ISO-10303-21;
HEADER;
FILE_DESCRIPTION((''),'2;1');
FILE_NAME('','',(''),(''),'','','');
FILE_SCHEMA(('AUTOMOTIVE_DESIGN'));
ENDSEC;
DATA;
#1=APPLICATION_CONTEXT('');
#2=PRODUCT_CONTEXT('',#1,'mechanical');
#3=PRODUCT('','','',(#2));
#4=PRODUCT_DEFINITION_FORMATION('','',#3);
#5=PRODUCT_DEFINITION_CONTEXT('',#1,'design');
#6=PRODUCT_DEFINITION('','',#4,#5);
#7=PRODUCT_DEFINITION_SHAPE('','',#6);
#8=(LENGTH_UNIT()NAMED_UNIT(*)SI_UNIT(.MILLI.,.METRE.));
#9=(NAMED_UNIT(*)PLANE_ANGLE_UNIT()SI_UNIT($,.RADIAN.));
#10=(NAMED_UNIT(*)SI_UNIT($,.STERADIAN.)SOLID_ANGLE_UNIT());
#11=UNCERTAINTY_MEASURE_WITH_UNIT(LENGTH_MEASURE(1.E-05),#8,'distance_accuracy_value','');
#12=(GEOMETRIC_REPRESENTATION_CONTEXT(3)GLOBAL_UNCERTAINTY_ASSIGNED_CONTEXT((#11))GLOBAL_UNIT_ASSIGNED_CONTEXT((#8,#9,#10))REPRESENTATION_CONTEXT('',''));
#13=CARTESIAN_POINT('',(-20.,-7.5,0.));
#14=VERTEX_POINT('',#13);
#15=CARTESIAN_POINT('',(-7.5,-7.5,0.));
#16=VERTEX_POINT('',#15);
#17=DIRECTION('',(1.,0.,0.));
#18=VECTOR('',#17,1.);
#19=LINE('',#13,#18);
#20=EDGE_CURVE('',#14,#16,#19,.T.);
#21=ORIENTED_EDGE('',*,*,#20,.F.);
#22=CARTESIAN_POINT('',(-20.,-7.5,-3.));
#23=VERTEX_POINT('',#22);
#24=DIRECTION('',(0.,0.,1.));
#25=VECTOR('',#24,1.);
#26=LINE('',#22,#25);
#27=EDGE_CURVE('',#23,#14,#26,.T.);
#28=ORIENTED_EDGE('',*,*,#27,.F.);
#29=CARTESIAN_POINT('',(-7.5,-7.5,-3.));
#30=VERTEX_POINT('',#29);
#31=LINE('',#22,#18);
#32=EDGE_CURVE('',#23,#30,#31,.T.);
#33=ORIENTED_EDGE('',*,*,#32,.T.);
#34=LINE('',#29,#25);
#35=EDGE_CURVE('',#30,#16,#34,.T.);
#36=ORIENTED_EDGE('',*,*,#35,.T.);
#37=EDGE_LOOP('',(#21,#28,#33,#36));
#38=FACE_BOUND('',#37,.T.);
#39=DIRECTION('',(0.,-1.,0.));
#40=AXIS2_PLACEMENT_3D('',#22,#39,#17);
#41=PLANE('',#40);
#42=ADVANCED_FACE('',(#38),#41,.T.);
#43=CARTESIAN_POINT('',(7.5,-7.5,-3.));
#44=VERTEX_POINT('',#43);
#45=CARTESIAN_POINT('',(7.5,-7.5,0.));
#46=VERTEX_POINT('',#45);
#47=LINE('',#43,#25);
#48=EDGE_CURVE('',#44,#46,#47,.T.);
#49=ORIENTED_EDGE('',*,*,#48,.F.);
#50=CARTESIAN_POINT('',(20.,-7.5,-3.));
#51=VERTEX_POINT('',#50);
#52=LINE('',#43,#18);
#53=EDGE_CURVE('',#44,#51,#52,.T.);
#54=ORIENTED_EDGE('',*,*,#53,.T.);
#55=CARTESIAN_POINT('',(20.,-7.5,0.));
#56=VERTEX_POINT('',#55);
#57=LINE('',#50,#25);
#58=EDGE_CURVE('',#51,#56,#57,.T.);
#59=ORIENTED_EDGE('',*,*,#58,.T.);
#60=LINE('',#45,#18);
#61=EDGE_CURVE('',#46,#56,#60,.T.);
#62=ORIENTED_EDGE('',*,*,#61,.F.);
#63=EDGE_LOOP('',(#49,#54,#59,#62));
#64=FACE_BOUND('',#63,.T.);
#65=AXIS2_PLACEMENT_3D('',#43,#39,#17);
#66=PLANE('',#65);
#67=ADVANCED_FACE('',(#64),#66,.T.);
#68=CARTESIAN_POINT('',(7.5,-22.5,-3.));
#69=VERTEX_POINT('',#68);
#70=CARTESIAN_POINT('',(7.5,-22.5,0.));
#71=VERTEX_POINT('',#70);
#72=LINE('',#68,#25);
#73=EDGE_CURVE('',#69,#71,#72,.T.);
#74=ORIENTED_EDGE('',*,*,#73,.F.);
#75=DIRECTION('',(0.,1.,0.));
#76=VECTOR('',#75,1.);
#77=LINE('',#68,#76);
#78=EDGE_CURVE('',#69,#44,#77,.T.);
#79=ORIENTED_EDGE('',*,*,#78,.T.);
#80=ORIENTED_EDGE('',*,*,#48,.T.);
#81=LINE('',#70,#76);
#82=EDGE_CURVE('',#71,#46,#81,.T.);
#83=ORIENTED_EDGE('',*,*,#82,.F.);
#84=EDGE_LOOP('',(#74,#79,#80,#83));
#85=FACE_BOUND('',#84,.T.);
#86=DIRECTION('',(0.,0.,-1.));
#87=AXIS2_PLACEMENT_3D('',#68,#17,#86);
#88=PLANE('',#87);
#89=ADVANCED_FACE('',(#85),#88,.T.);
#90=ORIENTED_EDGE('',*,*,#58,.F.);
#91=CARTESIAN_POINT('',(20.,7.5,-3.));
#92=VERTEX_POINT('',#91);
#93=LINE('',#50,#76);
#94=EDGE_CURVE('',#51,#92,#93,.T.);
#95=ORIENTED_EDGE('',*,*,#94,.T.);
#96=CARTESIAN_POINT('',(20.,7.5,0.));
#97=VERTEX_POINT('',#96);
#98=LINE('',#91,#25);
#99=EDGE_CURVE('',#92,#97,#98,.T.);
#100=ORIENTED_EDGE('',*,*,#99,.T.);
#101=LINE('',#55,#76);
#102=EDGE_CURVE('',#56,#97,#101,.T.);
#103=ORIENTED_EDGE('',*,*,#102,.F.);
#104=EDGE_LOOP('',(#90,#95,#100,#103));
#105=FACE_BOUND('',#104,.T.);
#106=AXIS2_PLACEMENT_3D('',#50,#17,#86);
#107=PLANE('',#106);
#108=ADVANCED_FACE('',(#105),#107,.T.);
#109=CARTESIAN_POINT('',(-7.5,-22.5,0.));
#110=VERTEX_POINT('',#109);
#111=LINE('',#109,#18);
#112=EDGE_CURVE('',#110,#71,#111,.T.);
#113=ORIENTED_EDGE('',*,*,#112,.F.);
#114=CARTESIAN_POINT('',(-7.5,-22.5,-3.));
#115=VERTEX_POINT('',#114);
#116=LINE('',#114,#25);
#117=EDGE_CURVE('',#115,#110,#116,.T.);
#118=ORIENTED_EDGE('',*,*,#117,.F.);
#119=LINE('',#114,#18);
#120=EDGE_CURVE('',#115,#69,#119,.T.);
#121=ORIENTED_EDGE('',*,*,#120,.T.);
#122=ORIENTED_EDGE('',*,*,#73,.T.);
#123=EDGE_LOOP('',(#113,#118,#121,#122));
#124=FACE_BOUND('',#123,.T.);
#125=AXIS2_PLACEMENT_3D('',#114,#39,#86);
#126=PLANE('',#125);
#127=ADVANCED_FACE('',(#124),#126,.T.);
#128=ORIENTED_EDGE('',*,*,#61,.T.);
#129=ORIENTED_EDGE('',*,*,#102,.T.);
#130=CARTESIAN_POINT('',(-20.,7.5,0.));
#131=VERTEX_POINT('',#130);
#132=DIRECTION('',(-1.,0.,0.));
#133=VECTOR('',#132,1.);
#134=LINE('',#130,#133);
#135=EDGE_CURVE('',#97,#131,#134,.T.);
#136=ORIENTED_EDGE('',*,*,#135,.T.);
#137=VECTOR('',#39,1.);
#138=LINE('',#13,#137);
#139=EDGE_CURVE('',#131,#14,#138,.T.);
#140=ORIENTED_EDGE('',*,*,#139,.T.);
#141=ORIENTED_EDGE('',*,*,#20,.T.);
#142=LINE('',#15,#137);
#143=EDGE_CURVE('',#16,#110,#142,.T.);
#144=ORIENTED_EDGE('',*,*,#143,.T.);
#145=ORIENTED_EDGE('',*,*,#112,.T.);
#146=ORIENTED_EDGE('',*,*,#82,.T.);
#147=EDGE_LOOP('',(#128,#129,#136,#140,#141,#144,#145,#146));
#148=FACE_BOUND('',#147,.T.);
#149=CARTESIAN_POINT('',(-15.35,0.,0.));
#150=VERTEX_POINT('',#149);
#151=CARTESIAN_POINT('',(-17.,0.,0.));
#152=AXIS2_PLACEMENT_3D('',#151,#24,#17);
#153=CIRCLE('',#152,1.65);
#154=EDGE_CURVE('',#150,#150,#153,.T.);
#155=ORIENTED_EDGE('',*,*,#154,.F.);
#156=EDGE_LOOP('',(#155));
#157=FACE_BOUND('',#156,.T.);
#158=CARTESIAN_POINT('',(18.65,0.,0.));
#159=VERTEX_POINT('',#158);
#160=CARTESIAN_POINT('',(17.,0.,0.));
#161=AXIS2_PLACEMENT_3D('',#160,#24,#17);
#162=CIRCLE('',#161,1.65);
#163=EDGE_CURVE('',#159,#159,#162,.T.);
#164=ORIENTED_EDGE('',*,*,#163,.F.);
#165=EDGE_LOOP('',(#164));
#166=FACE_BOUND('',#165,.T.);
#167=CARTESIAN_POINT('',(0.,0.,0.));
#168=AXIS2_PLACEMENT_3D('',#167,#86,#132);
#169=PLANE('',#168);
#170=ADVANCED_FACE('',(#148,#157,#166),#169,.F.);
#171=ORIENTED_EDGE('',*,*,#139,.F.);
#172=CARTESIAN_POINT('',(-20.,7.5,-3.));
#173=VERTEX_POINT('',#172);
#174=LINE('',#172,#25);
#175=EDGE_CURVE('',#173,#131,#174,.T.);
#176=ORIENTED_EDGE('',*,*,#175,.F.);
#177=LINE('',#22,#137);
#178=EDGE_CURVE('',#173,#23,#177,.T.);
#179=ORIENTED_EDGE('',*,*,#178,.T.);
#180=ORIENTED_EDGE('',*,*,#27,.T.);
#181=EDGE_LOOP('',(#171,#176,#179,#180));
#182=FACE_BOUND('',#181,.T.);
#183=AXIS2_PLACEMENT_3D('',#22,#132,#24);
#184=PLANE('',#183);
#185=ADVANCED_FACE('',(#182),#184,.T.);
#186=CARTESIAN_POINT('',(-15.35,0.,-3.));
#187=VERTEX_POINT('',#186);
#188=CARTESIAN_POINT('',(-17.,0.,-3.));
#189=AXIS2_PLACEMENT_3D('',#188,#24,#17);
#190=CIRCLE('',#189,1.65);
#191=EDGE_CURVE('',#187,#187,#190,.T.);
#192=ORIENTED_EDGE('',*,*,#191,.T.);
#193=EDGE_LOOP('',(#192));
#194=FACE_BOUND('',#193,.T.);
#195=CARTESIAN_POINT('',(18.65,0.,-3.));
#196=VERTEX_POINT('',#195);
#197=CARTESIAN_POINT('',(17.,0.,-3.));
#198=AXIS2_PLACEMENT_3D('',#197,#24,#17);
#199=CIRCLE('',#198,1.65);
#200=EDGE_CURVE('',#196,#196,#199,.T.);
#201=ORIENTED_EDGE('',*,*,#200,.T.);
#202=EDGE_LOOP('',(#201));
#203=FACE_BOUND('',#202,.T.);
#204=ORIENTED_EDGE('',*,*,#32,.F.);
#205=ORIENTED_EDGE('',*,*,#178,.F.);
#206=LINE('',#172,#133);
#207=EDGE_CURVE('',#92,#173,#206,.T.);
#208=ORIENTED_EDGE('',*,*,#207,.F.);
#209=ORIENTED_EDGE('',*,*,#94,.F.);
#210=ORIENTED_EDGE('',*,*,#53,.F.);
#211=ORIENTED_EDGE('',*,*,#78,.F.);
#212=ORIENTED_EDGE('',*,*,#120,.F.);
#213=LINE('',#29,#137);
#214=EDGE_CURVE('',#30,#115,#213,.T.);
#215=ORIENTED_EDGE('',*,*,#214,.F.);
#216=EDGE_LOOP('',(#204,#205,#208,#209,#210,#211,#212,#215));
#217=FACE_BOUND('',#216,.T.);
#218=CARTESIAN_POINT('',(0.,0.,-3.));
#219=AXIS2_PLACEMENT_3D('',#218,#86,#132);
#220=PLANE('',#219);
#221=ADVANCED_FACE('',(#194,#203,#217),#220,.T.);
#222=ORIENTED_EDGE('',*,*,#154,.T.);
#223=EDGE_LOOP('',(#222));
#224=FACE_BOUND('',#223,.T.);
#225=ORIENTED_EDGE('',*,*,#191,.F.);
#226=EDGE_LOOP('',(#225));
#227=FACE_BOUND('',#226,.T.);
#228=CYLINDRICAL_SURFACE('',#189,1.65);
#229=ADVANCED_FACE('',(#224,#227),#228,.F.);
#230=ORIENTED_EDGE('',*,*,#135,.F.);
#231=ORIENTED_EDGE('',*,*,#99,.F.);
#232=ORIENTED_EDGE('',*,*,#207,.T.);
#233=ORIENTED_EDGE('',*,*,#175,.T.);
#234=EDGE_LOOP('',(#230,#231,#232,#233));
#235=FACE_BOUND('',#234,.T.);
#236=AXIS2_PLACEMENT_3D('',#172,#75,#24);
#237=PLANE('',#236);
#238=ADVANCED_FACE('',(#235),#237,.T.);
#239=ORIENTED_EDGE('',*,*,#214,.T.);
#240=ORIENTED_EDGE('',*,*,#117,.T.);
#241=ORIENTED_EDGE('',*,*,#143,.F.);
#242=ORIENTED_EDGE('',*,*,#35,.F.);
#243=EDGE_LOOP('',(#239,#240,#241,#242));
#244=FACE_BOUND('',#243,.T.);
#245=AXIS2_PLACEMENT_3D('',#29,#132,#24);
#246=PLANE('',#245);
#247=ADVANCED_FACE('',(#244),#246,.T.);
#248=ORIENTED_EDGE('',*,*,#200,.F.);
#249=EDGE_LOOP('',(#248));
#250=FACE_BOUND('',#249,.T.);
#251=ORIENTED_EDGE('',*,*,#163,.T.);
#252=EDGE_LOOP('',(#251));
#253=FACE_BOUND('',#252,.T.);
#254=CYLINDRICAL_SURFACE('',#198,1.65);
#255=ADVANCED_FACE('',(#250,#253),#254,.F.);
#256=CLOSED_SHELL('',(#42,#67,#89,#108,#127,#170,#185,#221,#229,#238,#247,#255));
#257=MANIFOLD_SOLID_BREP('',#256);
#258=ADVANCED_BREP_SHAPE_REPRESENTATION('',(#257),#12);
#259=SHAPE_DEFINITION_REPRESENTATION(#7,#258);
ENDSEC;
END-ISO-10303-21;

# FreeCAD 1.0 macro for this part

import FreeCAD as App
import Part
import Sketcher
from FreeCAD import Vector


def add_polygon(sketch, points):
    """Adds a closed chain of lines whose ends are joined by coincident constraints."""
    first, n = sketch.GeometryCount, len(points)
    for a, b in zip(points, points[1:] + points[:1]):
        sketch.addGeometry(Part.LineSegment(App.Vector(*a, 0), App.Vector(*b, 0)), False)
    for i in range(n):
        sketch.addConstraint(Sketcher.Constraint("Coincident", first + i, 2, first + (i + 1) % n, 1))

doc = App.newDocument("Part")
params = doc.addObject("Spreadsheet::Sheet", "Params")
for row, (alias, value) in enumerate([
    ("sketch1_diameter", "3.3 mm"),
    ("sketch1_width", "15 mm"),
    ("sketch1_width2", "40 mm"),
    ("pad1_length", "3 mm"),
], start=1):
    params.set(f"A{row}", alias)
    params.set(f"B{row}", "=" + value)
    params.setAlias(f"B{row}", alias)

body = doc.addObject("PartDesign::Body", "Body")

sketch1 = body.newObject("Sketcher::SketchObject", "Sketch")
sketch1.AttachmentSupport = (doc.getObject("XY_Plane"), [""])
sketch1.MapMode = "FlatFace"
add_polygon(sketch1, [(-7.5, -7.5), (-7.5, -22.5), (7.5, -22.5), (7.5, -7.5), (20, -7.5), (20, 7.5), (-20, 7.5), (-20, -7.5)])
sketch1.addGeometry(Part.Circle(Vector(-17, 0, 0), Vector(0, 0, 1), 1.65), False)
sketch1.addGeometry(Part.Circle(Vector(17, 0, 0), Vector(0, 0, 1), 1.65), False)
sketch1.addConstraint(Sketcher.Constraint("Vertical", 0))
sketch1.addConstraint(Sketcher.Constraint("Horizontal", 1))
sketch1.addConstraint(Sketcher.Constraint("Vertical", 2))
sketch1.addConstraint(Sketcher.Constraint("Horizontal", 3))
sketch1.addConstraint(Sketcher.Constraint("Vertical", 4))
sketch1.addConstraint(Sketcher.Constraint("Horizontal", 5))
sketch1.addConstraint(Sketcher.Constraint("Vertical", 6))
sketch1.addConstraint(Sketcher.Constraint("Horizontal", 7))
sketch1.addConstraint(Sketcher.Constraint("Equal", 8, 9))
sketch1.addConstraint(Sketcher.Constraint("Symmetric", 8, 3, 9, 3, -1, 1))
sketch1.addConstraint(Sketcher.Constraint("Symmetric", 3, 2, 5, 2, -1, 1))
sketch1.addConstraint(Sketcher.Constraint("Symmetric", 2, 2, 7, 2, -2))
sketch1.addConstraint(Sketcher.Constraint("PointOnObject", 8, 3, -1))
sketch1.addConstraint(Sketcher.Constraint("Equal", 1, 0))
sketch1.addConstraint(Sketcher.Constraint("Equal", 2, 4))
sketch1.addConstraint(Sketcher.Constraint("Diameter", 8, 3.3))
sketch1.addConstraint(Sketcher.Constraint("DistanceX", 1, 1, 1, 2, 15.0))
sketch1.addConstraint(Sketcher.Constraint("DistanceX", 5, 2, 5, 1, 40.0))
sketch1.addConstraint(Sketcher.Constraint("DistanceX", 8, 3, -1, 1, 17.0))
sketch1.setExpression("Constraints[23]", "Params.sketch1_diameter")
sketch1.setExpression("Constraints[24]", "Params.sketch1_width")
sketch1.setExpression("Constraints[25]", "Params.sketch1_width2")
pad1 = body.newObject("PartDesign::Pad", "Pad")
pad1.Profile = sketch1
pad1.setExpression("Length", "Params.pad1_length")
pad1.Reversed = True

doc.recompute()
